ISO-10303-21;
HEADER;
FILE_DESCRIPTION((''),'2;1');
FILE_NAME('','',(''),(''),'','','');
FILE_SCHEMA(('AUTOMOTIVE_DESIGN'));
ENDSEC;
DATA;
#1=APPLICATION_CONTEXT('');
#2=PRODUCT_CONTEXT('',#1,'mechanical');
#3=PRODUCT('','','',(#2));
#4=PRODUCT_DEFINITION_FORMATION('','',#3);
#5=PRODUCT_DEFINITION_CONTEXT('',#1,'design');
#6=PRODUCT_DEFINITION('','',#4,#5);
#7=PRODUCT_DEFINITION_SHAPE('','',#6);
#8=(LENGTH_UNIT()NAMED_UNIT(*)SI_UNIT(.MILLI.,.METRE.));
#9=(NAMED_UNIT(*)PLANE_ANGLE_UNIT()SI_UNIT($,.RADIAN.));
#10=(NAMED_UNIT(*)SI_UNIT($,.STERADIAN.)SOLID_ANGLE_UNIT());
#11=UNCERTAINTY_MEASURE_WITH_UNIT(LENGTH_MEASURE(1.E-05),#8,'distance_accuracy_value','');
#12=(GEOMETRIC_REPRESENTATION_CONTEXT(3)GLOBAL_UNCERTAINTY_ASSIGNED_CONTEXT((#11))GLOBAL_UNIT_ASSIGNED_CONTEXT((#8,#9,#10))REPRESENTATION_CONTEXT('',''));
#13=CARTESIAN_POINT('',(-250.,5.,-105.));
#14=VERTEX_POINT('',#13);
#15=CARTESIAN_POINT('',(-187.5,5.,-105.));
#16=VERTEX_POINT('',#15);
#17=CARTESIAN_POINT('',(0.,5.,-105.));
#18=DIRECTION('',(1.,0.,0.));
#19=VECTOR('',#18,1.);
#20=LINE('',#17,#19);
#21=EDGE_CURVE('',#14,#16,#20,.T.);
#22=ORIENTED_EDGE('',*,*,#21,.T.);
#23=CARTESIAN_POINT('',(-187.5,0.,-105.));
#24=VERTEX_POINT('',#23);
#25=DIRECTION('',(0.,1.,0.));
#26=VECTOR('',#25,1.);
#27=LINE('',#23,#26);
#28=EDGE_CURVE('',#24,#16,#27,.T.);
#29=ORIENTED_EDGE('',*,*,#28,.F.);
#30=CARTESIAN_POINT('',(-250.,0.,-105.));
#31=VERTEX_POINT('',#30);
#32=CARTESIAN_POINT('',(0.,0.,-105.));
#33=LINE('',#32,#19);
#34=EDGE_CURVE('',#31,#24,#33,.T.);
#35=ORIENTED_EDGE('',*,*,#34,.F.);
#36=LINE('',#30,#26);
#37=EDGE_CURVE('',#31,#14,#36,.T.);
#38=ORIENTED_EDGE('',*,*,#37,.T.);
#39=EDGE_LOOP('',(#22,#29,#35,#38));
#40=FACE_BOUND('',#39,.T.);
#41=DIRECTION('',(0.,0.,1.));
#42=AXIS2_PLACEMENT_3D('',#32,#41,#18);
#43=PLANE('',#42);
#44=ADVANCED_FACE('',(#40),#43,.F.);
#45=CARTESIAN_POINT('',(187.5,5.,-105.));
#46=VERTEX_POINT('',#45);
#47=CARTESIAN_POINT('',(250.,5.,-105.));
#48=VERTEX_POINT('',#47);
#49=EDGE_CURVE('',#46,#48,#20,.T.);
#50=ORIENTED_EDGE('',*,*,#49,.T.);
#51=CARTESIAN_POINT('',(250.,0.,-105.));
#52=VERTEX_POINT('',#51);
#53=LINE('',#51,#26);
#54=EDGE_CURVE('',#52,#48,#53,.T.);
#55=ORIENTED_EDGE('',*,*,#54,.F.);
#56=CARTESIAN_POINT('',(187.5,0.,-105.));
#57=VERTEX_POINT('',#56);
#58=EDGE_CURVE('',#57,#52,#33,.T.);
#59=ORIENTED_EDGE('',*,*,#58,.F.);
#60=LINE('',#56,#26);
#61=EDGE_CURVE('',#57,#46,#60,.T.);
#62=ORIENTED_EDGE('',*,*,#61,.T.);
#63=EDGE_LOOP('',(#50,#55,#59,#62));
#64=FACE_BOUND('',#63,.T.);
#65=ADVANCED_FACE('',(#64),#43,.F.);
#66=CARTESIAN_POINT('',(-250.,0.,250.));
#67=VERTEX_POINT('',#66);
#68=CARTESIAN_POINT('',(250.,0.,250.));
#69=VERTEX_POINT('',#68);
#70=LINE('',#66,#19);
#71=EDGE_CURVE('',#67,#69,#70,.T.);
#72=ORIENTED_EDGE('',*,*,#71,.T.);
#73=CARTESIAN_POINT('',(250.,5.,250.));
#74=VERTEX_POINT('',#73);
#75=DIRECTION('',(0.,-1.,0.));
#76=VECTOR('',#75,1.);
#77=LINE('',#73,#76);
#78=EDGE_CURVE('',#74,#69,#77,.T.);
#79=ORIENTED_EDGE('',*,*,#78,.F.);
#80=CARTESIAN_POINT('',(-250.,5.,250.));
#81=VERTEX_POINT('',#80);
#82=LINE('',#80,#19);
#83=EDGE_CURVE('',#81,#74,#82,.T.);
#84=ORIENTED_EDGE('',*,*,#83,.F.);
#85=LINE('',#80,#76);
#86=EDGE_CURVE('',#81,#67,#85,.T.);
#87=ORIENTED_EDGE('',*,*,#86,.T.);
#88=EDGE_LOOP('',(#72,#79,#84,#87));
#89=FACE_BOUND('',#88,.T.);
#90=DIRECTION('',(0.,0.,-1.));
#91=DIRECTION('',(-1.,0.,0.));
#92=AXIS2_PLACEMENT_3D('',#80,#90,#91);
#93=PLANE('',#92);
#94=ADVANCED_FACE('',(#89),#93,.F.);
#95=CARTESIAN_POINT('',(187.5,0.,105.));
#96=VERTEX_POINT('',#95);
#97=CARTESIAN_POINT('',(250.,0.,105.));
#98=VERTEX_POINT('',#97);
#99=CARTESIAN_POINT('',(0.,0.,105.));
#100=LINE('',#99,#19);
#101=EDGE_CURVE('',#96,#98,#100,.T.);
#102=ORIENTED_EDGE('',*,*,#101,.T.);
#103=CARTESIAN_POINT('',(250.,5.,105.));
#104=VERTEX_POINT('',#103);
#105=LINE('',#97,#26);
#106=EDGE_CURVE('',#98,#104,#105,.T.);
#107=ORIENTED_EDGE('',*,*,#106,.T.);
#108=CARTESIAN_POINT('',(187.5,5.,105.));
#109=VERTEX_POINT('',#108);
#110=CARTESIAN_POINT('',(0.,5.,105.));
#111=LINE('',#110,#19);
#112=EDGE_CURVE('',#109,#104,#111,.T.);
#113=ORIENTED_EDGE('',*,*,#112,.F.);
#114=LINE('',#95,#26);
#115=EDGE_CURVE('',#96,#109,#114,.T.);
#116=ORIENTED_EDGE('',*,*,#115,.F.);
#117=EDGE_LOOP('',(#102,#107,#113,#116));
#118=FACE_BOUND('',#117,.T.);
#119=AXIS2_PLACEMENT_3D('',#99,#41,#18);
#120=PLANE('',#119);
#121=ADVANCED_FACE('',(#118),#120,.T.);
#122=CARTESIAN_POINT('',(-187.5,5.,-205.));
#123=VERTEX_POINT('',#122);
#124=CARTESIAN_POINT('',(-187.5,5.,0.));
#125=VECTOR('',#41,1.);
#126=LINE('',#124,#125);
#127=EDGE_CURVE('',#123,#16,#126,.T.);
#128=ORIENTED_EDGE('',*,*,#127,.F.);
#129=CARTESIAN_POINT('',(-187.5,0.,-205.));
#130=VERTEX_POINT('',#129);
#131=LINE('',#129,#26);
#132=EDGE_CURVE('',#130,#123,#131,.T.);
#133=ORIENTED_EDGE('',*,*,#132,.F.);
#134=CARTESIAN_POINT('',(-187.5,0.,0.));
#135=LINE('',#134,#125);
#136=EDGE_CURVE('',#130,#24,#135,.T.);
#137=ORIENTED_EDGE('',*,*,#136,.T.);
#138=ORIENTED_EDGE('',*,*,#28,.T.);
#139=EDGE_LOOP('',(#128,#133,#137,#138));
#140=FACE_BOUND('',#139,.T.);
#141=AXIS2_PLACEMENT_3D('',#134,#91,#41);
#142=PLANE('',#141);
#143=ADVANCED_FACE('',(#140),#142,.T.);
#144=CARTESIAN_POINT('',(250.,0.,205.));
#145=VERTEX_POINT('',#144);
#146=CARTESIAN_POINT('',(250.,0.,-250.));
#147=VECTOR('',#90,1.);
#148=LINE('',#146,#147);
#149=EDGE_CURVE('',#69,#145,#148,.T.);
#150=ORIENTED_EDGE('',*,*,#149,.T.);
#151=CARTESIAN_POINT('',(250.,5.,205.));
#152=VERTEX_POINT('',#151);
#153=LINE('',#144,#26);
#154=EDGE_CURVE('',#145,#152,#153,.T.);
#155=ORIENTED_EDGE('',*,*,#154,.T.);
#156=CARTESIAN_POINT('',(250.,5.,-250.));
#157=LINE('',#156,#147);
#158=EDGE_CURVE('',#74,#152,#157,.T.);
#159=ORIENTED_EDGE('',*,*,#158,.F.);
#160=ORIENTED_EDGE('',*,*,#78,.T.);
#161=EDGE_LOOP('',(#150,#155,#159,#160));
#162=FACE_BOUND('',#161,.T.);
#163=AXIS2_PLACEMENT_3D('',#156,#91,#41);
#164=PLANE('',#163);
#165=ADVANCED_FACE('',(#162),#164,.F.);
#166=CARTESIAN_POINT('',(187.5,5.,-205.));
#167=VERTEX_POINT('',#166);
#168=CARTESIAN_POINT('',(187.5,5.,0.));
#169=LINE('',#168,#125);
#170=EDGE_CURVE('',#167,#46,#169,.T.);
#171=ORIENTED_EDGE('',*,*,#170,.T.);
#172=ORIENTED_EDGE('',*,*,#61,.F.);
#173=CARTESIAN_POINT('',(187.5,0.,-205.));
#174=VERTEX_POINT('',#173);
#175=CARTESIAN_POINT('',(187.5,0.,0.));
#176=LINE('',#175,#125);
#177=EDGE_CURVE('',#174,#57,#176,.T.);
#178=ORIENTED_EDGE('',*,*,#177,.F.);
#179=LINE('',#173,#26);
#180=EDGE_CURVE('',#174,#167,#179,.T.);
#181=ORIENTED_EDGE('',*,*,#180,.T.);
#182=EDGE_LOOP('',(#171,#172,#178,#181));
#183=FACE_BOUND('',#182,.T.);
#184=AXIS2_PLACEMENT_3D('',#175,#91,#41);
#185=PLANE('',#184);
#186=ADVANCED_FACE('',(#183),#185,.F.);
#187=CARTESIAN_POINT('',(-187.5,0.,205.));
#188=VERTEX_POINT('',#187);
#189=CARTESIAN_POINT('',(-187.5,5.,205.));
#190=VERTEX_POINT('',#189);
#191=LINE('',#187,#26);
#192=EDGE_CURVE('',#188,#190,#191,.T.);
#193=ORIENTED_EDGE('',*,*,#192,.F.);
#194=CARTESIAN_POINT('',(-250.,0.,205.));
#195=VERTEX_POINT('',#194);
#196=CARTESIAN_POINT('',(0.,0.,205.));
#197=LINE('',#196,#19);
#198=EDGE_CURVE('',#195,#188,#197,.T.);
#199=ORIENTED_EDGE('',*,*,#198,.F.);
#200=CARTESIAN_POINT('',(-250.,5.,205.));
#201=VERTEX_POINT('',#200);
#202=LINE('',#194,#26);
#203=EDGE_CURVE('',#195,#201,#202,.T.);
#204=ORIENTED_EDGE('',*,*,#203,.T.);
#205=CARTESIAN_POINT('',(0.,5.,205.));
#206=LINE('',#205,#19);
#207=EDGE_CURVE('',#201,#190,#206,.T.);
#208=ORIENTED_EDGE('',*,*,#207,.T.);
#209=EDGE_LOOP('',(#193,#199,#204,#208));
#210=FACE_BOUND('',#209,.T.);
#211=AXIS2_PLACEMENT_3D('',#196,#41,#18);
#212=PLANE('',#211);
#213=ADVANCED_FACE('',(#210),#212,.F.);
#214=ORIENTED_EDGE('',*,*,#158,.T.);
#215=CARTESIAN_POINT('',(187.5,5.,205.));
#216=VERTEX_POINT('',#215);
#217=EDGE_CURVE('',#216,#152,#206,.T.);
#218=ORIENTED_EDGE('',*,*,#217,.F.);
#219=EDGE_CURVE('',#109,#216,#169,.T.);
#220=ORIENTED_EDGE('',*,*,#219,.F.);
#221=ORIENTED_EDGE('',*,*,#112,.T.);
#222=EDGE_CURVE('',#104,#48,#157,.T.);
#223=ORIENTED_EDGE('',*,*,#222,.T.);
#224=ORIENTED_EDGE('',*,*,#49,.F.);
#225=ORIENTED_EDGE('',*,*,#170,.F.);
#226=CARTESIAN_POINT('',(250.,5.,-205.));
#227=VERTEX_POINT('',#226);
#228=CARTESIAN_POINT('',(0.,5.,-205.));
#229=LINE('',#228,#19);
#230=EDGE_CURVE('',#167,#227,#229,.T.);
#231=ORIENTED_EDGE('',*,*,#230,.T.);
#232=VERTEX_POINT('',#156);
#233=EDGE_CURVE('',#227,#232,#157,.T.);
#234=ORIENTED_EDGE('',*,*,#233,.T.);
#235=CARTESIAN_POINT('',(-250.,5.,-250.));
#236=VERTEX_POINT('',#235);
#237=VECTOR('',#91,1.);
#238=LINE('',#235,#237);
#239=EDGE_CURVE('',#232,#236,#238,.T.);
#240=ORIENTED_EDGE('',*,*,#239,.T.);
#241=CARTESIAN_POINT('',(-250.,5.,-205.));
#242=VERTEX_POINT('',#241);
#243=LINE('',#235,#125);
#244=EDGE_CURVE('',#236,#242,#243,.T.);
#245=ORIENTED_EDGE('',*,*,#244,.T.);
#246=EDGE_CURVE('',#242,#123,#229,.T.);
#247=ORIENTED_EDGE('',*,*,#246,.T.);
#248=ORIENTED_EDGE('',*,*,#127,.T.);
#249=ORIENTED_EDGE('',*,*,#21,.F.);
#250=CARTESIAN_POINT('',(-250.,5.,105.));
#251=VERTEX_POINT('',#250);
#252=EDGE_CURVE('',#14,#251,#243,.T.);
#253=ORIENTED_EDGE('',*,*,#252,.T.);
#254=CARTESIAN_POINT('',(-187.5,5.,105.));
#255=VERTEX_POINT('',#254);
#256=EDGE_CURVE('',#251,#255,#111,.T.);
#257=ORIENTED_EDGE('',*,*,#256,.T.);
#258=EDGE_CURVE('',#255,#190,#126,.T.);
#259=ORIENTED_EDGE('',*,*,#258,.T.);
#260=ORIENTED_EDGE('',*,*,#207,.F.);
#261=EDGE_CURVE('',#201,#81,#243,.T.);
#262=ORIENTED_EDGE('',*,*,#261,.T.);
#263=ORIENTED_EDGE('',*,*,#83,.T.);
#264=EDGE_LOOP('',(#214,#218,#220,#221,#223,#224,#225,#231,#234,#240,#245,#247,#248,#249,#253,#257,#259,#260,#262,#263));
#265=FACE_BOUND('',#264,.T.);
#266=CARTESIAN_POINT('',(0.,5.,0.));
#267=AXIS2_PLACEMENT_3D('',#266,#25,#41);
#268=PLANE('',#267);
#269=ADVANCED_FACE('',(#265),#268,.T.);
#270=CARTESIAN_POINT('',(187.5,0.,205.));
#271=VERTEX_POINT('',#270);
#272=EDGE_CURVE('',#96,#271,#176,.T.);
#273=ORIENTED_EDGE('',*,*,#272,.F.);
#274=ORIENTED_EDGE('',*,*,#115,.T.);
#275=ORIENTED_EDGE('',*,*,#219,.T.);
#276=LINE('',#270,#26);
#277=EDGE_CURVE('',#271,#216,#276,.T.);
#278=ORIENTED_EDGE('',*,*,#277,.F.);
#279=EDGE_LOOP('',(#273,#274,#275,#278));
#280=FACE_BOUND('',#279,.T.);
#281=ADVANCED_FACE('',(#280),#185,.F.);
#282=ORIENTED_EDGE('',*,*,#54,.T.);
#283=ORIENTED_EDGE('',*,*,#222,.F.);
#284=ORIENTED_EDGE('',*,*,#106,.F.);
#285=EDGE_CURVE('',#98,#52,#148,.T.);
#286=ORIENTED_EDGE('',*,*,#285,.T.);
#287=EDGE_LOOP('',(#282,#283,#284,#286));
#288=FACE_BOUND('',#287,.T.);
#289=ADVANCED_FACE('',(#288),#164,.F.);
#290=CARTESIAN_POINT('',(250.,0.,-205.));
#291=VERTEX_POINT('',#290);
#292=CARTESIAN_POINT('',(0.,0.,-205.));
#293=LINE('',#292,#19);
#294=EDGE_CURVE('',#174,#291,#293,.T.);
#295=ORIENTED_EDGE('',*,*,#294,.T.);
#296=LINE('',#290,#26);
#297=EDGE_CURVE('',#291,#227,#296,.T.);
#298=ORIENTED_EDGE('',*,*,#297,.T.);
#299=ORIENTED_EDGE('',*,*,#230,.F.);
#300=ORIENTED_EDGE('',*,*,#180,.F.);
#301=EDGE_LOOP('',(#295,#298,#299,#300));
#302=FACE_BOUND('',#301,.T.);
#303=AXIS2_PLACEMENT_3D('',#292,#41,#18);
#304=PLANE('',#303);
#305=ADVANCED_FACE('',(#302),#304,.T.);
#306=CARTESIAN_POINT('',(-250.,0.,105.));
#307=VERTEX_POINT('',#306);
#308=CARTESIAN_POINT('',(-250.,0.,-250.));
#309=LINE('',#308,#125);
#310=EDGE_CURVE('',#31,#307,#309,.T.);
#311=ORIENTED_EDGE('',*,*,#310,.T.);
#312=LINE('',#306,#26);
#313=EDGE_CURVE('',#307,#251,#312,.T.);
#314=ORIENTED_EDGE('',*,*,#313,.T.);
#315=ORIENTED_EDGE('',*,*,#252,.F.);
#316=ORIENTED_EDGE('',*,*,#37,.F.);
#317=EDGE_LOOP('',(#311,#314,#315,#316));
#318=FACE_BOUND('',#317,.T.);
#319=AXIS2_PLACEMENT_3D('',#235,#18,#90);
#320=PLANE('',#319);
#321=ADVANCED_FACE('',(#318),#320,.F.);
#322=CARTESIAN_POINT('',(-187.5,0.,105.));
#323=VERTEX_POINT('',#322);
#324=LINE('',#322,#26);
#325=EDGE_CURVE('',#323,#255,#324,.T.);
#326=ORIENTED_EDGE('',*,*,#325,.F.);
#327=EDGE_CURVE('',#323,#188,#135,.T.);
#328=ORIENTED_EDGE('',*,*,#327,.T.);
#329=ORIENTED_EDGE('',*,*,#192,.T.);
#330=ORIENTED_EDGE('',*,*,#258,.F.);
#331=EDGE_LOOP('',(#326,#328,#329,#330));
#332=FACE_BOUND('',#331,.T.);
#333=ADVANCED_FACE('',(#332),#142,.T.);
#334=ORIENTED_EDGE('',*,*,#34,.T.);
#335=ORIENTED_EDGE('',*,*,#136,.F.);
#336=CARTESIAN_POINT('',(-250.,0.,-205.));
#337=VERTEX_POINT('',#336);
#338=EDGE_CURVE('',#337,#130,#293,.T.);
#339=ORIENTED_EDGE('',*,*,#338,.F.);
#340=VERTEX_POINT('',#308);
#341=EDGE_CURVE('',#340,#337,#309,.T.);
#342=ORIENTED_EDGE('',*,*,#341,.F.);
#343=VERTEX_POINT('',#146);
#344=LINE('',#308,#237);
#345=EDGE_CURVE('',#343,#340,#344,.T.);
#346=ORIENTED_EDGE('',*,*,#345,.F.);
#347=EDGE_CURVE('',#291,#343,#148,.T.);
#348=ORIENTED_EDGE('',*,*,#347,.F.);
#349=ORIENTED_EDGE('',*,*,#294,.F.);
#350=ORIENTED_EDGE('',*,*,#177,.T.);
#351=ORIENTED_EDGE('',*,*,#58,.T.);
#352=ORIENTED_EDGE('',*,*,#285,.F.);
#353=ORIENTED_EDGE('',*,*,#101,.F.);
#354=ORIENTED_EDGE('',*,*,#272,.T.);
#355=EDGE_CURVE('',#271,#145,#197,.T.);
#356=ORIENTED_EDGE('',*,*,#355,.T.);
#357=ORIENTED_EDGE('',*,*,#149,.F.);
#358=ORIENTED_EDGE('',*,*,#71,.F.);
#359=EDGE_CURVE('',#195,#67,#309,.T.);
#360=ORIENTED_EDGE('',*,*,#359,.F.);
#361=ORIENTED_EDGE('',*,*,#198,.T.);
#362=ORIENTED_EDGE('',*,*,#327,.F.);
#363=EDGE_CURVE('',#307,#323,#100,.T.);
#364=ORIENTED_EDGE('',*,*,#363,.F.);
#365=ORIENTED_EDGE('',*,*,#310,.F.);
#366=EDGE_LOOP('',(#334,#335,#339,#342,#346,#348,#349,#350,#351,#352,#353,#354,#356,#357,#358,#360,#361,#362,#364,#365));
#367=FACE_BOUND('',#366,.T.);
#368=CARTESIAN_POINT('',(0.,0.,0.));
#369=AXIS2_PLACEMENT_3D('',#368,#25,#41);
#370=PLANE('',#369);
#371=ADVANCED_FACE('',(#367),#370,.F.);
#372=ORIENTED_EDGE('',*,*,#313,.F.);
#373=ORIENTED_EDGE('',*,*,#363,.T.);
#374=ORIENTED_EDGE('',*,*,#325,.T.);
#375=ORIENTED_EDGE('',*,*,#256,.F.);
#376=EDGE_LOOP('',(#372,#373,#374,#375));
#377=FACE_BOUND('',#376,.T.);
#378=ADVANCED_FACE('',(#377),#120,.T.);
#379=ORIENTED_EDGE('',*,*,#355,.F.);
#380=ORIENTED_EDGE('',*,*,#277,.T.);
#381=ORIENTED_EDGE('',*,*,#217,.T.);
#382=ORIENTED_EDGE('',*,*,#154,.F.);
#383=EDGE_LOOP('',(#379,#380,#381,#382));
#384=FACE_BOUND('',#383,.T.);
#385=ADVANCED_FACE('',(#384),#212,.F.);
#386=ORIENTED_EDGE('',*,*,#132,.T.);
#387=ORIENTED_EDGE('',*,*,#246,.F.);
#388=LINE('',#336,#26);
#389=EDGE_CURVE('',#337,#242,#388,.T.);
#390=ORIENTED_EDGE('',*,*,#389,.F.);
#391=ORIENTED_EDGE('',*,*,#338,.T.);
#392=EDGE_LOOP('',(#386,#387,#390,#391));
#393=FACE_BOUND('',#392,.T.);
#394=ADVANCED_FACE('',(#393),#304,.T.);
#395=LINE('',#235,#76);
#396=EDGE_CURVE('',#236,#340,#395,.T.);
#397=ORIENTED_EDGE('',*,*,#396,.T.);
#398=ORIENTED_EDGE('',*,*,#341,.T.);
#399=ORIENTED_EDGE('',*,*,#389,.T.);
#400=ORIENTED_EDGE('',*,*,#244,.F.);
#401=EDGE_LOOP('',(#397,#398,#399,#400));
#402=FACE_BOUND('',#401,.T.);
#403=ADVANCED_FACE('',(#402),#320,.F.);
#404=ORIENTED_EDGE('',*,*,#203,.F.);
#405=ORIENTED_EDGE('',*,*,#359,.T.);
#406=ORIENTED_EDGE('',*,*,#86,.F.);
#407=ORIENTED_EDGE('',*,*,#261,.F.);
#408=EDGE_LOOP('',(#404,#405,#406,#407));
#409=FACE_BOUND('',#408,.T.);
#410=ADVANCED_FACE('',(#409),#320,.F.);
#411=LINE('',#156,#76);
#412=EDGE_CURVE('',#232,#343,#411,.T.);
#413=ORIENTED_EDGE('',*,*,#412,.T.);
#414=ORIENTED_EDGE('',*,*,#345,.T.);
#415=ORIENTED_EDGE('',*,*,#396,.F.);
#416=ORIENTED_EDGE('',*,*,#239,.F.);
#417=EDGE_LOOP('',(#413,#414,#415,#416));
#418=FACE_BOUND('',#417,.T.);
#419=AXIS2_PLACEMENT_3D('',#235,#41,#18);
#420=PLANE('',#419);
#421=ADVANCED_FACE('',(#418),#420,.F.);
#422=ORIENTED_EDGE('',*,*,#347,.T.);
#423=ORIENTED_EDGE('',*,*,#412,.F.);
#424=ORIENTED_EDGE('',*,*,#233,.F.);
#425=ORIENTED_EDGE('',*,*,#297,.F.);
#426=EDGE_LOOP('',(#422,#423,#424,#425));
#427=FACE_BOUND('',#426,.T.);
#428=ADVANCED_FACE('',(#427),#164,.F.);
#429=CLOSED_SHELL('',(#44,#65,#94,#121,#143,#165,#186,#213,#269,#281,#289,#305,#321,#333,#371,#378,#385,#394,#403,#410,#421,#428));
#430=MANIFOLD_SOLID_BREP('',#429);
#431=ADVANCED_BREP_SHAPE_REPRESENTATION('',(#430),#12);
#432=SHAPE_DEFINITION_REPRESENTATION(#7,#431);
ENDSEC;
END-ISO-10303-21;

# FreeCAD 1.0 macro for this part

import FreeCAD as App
import Part
import Sketcher
from FreeCAD import Vector
Q = App.Units.Quantity


def add_polygon(sketch, points):
    """Adds a closed chain of lines whose ends are joined by coincident constraints."""
    first, n = sketch.GeometryCount, len(points)
    for a, b in zip(points, points[1:] + points[:1]):
        sketch.addGeometry(Part.LineSegment(App.Vector(*a, 0), App.Vector(*b, 0)), False)
    for i in range(n):
        sketch.addConstraint(Sketcher.Constraint("Coincident", first + i, 2, first + (i + 1) % n, 1))

doc = App.newDocument("Part")
params = doc.addObject("Spreadsheet::Sheet", "Params")
for row, (alias, value) in enumerate([
    ("sketch1_width", "500 mm"),
    ("pad1_length", "5 mm"),
    ("sketch2_height", "100 mm"),
    ("sketch2_width", "62.5 mm"),
    ("pocket1_length", "5 mm"),
], start=1):
    params.set(f"A{row}", alias)
    params.set(f"B{row}", "=" + value)
    params.setAlias(f"B{row}", alias)

body = doc.addObject("PartDesign::Body", "Body")

sketch1 = body.newObject("Sketcher::SketchObject", "Sketch")
sketch1.AttachmentSupport = (doc.getObject("XZ_Plane"), [""])
sketch1.MapMode = "FlatFace"
add_polygon(sketch1, [(-250, -250), (-250, 250), (250, 250), (250, -250)])
sketch1.addConstraint([
    Sketcher.Constraint("Vertical", 0),
    Sketcher.Constraint("Horizontal", 1),
    Sketcher.Constraint("Vertical", 2),
    Sketcher.Constraint("Horizontal", 3),
    Sketcher.Constraint("Symmetric", 0, 2, 2, 2, -1, 1),
    Sketcher.Constraint("Equal", 3, 0),
    Sketcher.Constraint("DistanceX", 1, 1, 1, 2, Q("500 mm")),
])
sketch1.setExpression("Constraints[10]", "Params.sketch1_width")
pad1 = body.newObject("PartDesign::Pad", "Pad")
pad1.Profile = sketch1
pad1.setExpression("Length", "Params.pad1_length")
pad1.Reversed = True

sketch2 = body.newObject("Sketcher::SketchObject", "Sketch001")
sketch2.AttachmentSupport = (doc.getObject("XZ_Plane"), [""])
sketch2.MapMode = "FlatFace"
sketch2.AttachmentOffset = App.Placement(Vector(0, 0, -5), App.Rotation())
add_polygon(sketch2, [(-188, -205), (-250, -205), (-250, -105), (-188, -105)])
add_polygon(sketch2, [(-188, 105), (-250, 105), (-250, 205), (-188, 205)])
add_polygon(sketch2, [(250, 105), (188, 105), (188, 205), (250, 205)])
add_polygon(sketch2, [(250, -205), (188, -205), (188, -105), (250, -105)])
sketch2.addConstraint([
    Sketcher.Constraint("Horizontal", 0),
    Sketcher.Constraint("Vertical", 1),
    Sketcher.Constraint("Horizontal", 2),
    Sketcher.Constraint("Vertical", 3),
    Sketcher.Constraint("Horizontal", 4),
    Sketcher.Constraint("Vertical", 5),
    Sketcher.Constraint("Horizontal", 6),
    Sketcher.Constraint("Vertical", 7),
    Sketcher.Constraint("Horizontal", 8),
    Sketcher.Constraint("Vertical", 9),
    Sketcher.Constraint("Horizontal", 10),
    Sketcher.Constraint("Vertical", 11),
    Sketcher.Constraint("Horizontal", 12),
    Sketcher.Constraint("Vertical", 13),
    Sketcher.Constraint("Horizontal", 14),
    Sketcher.Constraint("Vertical", 15),
    Sketcher.Constraint("Symmetric", 2, 2, 8, 2, -1, 1),
    Sketcher.Constraint("Symmetric", 0, 2, 10, 2, -1, 1),
    Sketcher.Constraint("Symmetric", 6, 2, 12, 2, -1, 1),
    Sketcher.Constraint("Symmetric", 4, 2, 14, 2, -1, 1),
    Sketcher.Constraint("Symmetric", 7, 2, 8, 2, -2),
    Sketcher.Constraint("Symmetric", 5, 2, 10, 2, -2),
    Sketcher.Constraint("DistanceY", 1, 1, 1, 2, Q("100 mm")),
    Sketcher.Constraint("DistanceX", 0, 2, 0, 1, Q("62.5 mm")),
    Sketcher.Constraint("DistanceX", 0, 2, -1, 1, Q("250 mm")),
    Sketcher.Constraint("DistanceY", 0, 2, -1, 1, Q("205 mm")),
])
sketch2.setExpression("Constraints[38]", "Params.sketch2_height")
sketch2.setExpression("Constraints[39]", "Params.sketch2_width")
pocket1 = body.newObject("PartDesign::Pocket", "Pocket")
pocket1.Profile = sketch2
pocket1.setExpression("Length", "Params.pocket1_length")
pocket1.Reversed = True

doc.recompute()
